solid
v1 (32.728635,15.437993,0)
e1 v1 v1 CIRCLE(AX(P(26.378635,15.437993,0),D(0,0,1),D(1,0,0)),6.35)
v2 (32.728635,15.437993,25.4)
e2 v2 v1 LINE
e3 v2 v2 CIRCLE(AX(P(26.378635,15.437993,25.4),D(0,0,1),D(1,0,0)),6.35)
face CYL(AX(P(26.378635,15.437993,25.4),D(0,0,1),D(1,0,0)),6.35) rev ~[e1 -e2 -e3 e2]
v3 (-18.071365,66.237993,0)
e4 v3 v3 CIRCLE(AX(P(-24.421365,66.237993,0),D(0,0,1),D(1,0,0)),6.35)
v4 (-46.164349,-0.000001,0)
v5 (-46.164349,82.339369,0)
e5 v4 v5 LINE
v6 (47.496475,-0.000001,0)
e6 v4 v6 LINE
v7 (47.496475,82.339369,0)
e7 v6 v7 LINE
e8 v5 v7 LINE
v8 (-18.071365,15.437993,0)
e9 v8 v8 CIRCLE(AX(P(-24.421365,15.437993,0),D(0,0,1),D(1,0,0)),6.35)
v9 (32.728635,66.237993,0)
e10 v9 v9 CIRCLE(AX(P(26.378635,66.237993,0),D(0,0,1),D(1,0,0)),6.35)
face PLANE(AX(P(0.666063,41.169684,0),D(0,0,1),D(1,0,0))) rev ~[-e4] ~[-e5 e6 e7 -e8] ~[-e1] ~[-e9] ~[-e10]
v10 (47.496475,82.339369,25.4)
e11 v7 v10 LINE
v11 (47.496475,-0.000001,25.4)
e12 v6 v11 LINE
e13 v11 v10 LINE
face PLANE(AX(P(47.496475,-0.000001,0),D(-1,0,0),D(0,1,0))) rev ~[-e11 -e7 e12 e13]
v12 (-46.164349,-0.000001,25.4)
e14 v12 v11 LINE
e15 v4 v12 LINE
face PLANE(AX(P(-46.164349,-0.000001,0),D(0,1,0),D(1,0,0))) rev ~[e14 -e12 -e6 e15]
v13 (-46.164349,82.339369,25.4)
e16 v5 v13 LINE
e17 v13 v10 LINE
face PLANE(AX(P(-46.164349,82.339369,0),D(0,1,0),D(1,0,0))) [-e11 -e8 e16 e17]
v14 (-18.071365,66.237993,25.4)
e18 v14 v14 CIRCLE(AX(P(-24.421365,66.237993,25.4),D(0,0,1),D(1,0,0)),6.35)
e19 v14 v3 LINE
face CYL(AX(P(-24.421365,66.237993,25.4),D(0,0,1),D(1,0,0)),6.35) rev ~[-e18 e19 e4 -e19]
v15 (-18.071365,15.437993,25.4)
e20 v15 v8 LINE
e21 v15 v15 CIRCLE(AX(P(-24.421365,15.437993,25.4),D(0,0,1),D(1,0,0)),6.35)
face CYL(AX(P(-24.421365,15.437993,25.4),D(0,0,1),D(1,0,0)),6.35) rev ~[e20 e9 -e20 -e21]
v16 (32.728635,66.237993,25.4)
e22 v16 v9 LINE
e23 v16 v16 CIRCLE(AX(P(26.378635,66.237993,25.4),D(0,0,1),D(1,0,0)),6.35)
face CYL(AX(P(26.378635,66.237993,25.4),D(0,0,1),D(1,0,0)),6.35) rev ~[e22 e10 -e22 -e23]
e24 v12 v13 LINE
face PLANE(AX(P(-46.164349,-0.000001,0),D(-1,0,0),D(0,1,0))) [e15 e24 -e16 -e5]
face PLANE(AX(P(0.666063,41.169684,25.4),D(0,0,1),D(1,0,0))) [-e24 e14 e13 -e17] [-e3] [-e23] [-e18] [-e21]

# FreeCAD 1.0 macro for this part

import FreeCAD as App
import Part
import Sketcher
Q = App.Units.Quantity


def add_polygon(sketch, points):
    """Adds a closed chain of lines whose ends are joined by coincident constraints."""
    first, n = sketch.GeometryCount, len(points)
    for a, b in zip(points, points[1:] + points[:1]):
        sketch.addGeometry(Part.LineSegment(App.Vector(*a, 0), App.Vector(*b, 0)), False)
    for i in range(n):
        sketch.addConstraint(Sketcher.Constraint("Coincident", first + i, 2, first + (i + 1) % n, 1))

doc = App.newDocument("Part")
body = doc.addObject("PartDesign::Body", "Body")

sketch1 = body.newObject("Sketcher::SketchObject", "Sketch")
sketch1.AttachmentSupport = (doc.getObject("XY_Plane"), [""])
sketch1.MapMode = "FlatFace"
add_polygon(sketch1, [(-46, 82), (-46, 0), (47, 0), (47, 82)])
sketch1.addConstraint([
    Sketcher.Constraint("Vertical", 0),
    Sketcher.Constraint("Horizontal", 1),
    Sketcher.Constraint("Vertical", 2),
    Sketcher.Constraint("Horizontal", 3),
    Sketcher.Constraint("PointOnObject", 0, 2, -1),
    Sketcher.Constraint("DistanceY", 0, 2, 0, 1, 82.339369),
    Sketcher.Constraint("DistanceX", 1, 1, 1, 2, 93.660824),
    Sketcher.Constraint("DistanceX", 0, 2, -1, 1, 46.164349),
])
pad1 = body.newObject("PartDesign::Pad", "Pad")
pad1.Profile = sketch1
pad1.Length = Q("1 in")

sketch2 = body.newObject("Sketcher::SketchObject", "Sketch001")
sketch2.AttachmentSupport = (doc.getObject("XY_Plane"), [""])
sketch2.MapMode = "FlatFace"
sketch2.AttachmentOffset = App.Placement(App.Vector(0, 0, 1 * 25.4), App.Rotation())
sketch2.addGeometry([
    Part.Circle(App.Vector(26, 66, 0), App.Vector(0, 0, 1), 6),
    Part.Circle(App.Vector(26, 15, 0), App.Vector(0, 0, 1), 6),
    Part.Circle(App.Vector(-24, 66, 0), App.Vector(0, 0, 1), 6),
    Part.Circle(App.Vector(-24, 15, 0), App.Vector(0, 0, 1), 6),
], False)
sketch2.addConstraint([
    Sketcher.Constraint("Equal", 0, 1),
    Sketcher.Constraint("Equal", 1, 2),
    Sketcher.Constraint("Equal", 2, 3),
    Sketcher.Constraint("Horizontal", 0, 3, 2, 3),
    Sketcher.Constraint("Horizontal", 1, 3, 3, 3),
    Sketcher.Constraint("Vertical", 0, 3, 1, 3),
    Sketcher.Constraint("Vertical", 2, 3, 3, 3),
    Sketcher.Constraint("Diameter", 0, Q("0.5 in")),
    Sketcher.Constraint("DistanceY", 1, 3, 0, 3, Q("2 in")),
    Sketcher.Constraint("DistanceX", 2, 3, 0, 3, Q("2 in")),
    Sketcher.Constraint("DistanceX", -1, 1, 0, 3, 26.378635),
    Sketcher.Constraint("DistanceY", -1, 1, 0, 3, 66.237993),
])
pocket1 = body.newObject("PartDesign::Pocket", "Pocket")
pocket1.Profile = sketch2
pocket1.Type = "ThroughAll"

doc.recompute()
